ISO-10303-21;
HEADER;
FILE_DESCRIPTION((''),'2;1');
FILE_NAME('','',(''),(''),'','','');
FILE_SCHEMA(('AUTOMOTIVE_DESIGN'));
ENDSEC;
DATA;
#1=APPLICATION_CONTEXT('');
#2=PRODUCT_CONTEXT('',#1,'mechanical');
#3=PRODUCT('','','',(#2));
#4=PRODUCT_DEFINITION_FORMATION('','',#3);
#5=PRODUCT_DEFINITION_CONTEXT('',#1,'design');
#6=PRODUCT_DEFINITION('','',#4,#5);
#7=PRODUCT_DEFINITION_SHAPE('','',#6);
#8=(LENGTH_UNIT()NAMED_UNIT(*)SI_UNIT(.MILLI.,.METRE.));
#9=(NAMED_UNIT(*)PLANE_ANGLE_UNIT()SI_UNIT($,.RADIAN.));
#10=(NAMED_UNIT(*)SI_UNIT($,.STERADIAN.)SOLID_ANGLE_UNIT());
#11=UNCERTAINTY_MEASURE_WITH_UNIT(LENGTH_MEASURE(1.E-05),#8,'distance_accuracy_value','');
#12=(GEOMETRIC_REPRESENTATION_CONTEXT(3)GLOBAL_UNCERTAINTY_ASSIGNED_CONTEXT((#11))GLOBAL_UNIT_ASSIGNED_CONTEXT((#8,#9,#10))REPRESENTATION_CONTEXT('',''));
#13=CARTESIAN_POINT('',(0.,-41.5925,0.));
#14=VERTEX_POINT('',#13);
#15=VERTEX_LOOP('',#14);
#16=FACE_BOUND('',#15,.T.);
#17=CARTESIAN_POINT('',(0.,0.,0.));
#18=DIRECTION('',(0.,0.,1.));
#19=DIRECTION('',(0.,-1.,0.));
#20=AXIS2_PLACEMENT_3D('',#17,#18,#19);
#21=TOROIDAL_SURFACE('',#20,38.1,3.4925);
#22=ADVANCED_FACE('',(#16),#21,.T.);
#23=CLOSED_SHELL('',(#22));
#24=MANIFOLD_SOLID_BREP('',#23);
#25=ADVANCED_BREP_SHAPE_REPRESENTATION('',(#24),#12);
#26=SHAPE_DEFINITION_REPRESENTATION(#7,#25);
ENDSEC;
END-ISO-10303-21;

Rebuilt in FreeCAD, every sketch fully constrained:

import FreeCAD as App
import Part
import Sketcher

V = App.Vector
Q = App.Units.Quantity

doc = App.newDocument("Part")
body = doc.addObject("PartDesign::Body", "Body")

# Sketch on YZ plane
sketch1 = doc.addObject("Sketcher::SketchObject", "Sketch")
body.addObject(sketch1)
sketch1.AttachmentSupport = (doc.YZ_Plane, [""])
sketch1.MapMode = "FlatFace"
sketch1.addGeometry(Part.Circle(V(38.1, 0, 0), V(0, 0, 1), 3.5), False)
sketch1.addConstraint([
    Sketcher.Constraint("PointOnObject", 0, 3, -1),
    Sketcher.Constraint("Diameter", 0, Q("0.275 in")),
    Sketcher.Constraint("DistanceX", -1, 1, 0, 3, Q("1.5 in")),
])
revolution = doc.addObject("PartDesign::Revolution", "Revolution")
body.addObject(revolution)
revolution.Profile = sketch1
revolution.ReferenceAxis = (sketch1, ["V_Axis"])
revolution.Angle = 360

doc.recompute()
